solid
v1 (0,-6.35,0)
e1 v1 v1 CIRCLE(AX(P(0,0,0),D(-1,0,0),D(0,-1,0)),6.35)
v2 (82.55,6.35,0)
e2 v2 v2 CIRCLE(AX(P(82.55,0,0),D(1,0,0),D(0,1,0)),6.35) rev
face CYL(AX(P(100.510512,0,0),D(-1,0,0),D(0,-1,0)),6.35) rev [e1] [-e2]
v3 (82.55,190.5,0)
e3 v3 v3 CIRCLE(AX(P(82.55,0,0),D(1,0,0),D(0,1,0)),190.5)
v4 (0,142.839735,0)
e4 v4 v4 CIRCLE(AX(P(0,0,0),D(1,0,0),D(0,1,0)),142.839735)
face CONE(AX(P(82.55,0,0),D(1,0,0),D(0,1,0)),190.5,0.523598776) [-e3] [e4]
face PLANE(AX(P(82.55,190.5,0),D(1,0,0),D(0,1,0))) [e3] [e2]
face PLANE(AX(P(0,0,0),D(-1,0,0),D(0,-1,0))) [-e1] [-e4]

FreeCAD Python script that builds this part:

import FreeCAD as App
import Part
import Sketcher
Q = App.Units.Quantity


def add_polygon(sketch, points):
    """Adds a closed chain of lines whose ends are joined by coincident constraints."""
    first, n = sketch.GeometryCount, len(points)
    for a, b in zip(points, points[1:] + points[:1]):
        sketch.addGeometry(Part.LineSegment(App.Vector(*a, 0), App.Vector(*b, 0)), False)
    for i in range(n):
        sketch.addConstraint(Sketcher.Constraint("Coincident", first + i, 2, first + (i + 1) % n, 1))

doc = App.newDocument("Part")
params = doc.addObject("Spreadsheet::Sheet", "Params")
for row, (alias, value) in enumerate([
    ("sketch1_height", "7.5 in"),
    ("sketch1_width", "3.25 in"),
    ("revolution_angle", "360 deg"),
    ("sketch2_diameter", "0.5 in"),
    ("pocket1_length", "3.25 in"),
], start=1):
    params.set(f"A{row}", alias)
    params.set(f"B{row}", "=" + value)
    params.setAlias(f"B{row}", alias)

body = doc.addObject("PartDesign::Body", "Body")

sketch1 = doc.addObject("Sketcher::SketchObject", "Sketch")
body.addObject(sketch1)
sketch1.AttachmentSupport = (doc.XY_Plane, [""])
sketch1.MapMode = "FlatFace"
add_polygon(sketch1, [(0, 143), (0, 0), (83, 0), (83, 190)])
sketch1.addConstraint([
    Sketcher.Constraint("Vertical", 0),
    Sketcher.Constraint("Horizontal", 1),
    Sketcher.Constraint("Vertical", 2),
    Sketcher.Constraint("Coincident", 0, 2, -1, 1),
    Sketcher.Constraint("DistanceY", 2, 1, 2, 2, Q("7.5 in")),
    Sketcher.Constraint("Angle", 3, Q("-150 deg")),
    Sketcher.Constraint("DistanceX", 1, 1, 1, 2, Q("3.25 in")),
])
sketch1.setExpression("Constraints[8]", "Params.sketch1_height")
sketch1.setExpression("Constraints[10]", "Params.sketch1_width")
revolution = doc.addObject("PartDesign::Revolution", "Revolution")
body.addObject(revolution)
revolution.Profile = sketch1
revolution.ReferenceAxis = (sketch1, ["H_Axis"])
revolution.setExpression("Angle", "Params.revolution_angle")

sketch2 = doc.addObject("Sketcher::SketchObject", "Sketch001")
body.addObject(sketch2)
sketch2.AttachmentSupport = (doc.YZ_Plane, [""])
sketch2.MapMode = "FlatFace"
sketch2.addGeometry(Part.Circle(App.Vector(0, 0, 0), App.Vector(0, 0, 1), 6), False)
sketch2.addConstraint([
    Sketcher.Constraint("Coincident", 0, 3, -1, 1),
    Sketcher.Constraint("Diameter", 0, Q("0.5 in")),
])
sketch2.setExpression("Constraints[1]", "Params.sketch2_diameter")
pocket1 = doc.addObject("PartDesign::Pocket", "Pocket")
body.addObject(pocket1)
pocket1.Profile = sketch2
pocket1.setExpression("Length", "Params.pocket1_length")
pocket1.Reversed = True

doc.recompute()
